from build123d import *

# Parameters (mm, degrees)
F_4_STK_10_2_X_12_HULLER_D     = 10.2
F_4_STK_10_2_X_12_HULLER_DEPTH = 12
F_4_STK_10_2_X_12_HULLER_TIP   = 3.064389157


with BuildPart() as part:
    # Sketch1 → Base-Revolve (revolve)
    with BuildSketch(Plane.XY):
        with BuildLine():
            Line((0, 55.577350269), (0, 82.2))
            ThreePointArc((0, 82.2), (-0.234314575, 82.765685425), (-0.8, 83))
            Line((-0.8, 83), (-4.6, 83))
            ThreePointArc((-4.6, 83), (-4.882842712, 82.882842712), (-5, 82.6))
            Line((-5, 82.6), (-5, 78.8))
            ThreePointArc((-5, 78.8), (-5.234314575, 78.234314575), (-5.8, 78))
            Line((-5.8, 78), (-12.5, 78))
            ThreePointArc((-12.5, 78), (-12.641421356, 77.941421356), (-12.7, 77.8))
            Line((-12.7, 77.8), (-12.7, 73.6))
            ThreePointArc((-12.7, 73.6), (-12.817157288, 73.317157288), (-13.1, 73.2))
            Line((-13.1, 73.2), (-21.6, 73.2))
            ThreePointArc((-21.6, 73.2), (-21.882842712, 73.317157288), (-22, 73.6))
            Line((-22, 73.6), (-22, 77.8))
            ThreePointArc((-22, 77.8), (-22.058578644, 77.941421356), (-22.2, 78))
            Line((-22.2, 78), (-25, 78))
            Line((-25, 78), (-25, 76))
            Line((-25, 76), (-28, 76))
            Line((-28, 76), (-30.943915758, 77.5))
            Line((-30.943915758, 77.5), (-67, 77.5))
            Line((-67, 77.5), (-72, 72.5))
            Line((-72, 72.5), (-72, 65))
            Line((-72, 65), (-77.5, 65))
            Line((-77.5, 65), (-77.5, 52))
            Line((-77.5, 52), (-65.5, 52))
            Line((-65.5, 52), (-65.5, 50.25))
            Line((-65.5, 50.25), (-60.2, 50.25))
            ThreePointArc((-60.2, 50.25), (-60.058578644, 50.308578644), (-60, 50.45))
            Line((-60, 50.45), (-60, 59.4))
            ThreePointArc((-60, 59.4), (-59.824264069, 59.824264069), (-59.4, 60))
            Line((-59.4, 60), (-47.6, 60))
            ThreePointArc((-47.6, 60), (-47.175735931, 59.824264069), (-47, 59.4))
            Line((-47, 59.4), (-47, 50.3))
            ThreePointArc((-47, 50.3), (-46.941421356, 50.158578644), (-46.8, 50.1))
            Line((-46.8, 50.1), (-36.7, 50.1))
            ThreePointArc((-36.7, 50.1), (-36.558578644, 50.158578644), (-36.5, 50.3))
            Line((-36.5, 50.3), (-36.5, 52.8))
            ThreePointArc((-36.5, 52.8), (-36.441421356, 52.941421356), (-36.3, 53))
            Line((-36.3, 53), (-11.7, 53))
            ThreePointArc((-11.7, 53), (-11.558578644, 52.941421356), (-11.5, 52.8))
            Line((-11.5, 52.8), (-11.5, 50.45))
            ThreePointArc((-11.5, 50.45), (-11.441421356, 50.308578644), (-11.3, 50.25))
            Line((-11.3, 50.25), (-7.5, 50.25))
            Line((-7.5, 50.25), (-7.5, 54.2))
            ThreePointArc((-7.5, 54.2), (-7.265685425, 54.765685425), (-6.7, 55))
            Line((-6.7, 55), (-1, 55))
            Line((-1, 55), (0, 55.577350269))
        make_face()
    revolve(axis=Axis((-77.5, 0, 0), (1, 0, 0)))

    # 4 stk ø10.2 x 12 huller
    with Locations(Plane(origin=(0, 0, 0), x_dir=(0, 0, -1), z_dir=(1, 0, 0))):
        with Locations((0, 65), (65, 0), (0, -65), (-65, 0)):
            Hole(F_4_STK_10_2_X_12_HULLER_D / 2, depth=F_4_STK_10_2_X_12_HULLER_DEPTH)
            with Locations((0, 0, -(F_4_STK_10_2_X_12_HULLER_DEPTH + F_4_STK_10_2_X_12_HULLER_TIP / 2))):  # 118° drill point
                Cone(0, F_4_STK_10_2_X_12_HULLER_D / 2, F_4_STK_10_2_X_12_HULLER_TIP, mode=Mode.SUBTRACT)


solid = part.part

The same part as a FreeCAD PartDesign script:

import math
import FreeCAD as App
import Part
import Sketcher

V = App.Vector
Q = App.Units.Quantity

doc = App.newDocument("Part")
params = doc.addObject("Spreadsheet::Sheet", "Params")
for row, (alias, value) in enumerate([
    ("sketch1_radius", "0.8 mm"),
    ("sketch1_radius2", "0.4 mm"),
    ("sketch1_radius3", "0.2 mm"),
    ("sketch1_radius4", "0.6 mm"),
    ("sketch1_width", "3 mm"),
    ("revolution_angle", "360 deg"),
    ("sketch2_diameter", "10.2 mm"),
    ("hole_diameter", "10.2 mm"),
    ("hole_depth", "12 mm"),
], start=1):
    params.set(f"A{row}", alias)
    params.set(f"B{row}", "=" + value)
    params.setAlias(f"B{row}", alias)

body = doc.addObject("PartDesign::Body", "Body")

# Sketch on XY plane
sketch1 = body.newObject("Sketcher::SketchObject", "Sketch")
sketch1.AttachmentSupport = (doc.getObject("XY_Plane"), [""])
sketch1.MapMode = "FlatFace"
sketch1.addGeometry(Part.LineSegment(V(0, 55.58, 0), V(0, 82.2, 0)), False)
sketch1.addGeometry(Part.ArcOfCircle(Part.Circle(V(-0.8, 82.2, 0), V(0, 0, 1), 0.8), math.radians(0), math.radians(90)), False)
sketch1.addGeometry(Part.LineSegment(V(-0.8, 83, 0), V(-4.6, 83, 0)), False)
sketch1.addGeometry(Part.ArcOfCircle(Part.Circle(V(-4.6, 82.6, 0), V(0, 0, 1), 0.4), math.radians(90), math.radians(180)), False)
sketch1.addGeometry(Part.LineSegment(V(-5, 82.6, 0), V(-5, 78.8, 0)), False)
sketch1.addGeometry(Part.ArcOfCircle(Part.Circle(V(-5.8, 78.8, 0), V(0, 0, 1), 0.8), math.radians(-90), math.radians(0)), False)
sketch1.addGeometry(Part.LineSegment(V(-5.8, 78, 0), V(-12.5, 78, 0)), False)
sketch1.addGeometry(Part.ArcOfCircle(Part.Circle(V(-12.5, 77.8, 0), V(0, 0, 1), 0.2), math.radians(90), math.radians(180)), False)
sketch1.addGeometry(Part.LineSegment(V(-12.7, 77.8, 0), V(-12.7, 73.6, 0)), False)
sketch1.addGeometry(Part.ArcOfCircle(Part.Circle(V(-13.1, 73.6, 0), V(0, 0, 1), 0.4), math.radians(-90), math.radians(0)), False)
sketch1.addGeometry(Part.LineSegment(V(-13.1, 73.2, 0), V(-21.6, 73.2, 0)), False)
sketch1.addGeometry(Part.ArcOfCircle(Part.Circle(V(-21.6, 73.6, 0), V(0, 0, 1), 0.4), math.radians(-180), math.radians(-90)), False)
sketch1.addGeometry(Part.LineSegment(V(-22, 73.6, 0), V(-22, 77.8, 0)), False)
sketch1.addGeometry(Part.ArcOfCircle(Part.Circle(V(-22.2, 77.8, 0), V(0, 0, 1), 0.2), math.radians(0), math.radians(90)), False)
sketch1.addGeometry(Part.LineSegment(V(-22.2, 78, 0), V(-25, 78, 0)), False)
sketch1.addGeometry(Part.LineSegment(V(-25, 78, 0), V(-25, 76, 0)), False)
sketch1.addGeometry(Part.LineSegment(V(-25, 76, 0), V(-28, 76, 0)), False)
sketch1.addGeometry(Part.LineSegment(V(-28, 76, 0), V(-30.94, 77.5, 0)), False)
sketch1.addGeometry(Part.LineSegment(V(-30.94, 77.5, 0), V(-67, 77.5, 0)), False)
sketch1.addGeometry(Part.LineSegment(V(-67, 77.5, 0), V(-72, 72.5, 0)), False)
sketch1.addGeometry(Part.LineSegment(V(-72, 72.5, 0), V(-72, 65, 0)), False)
sketch1.addGeometry(Part.LineSegment(V(-72, 65, 0), V(-77.5, 65, 0)), False)
sketch1.addGeometry(Part.LineSegment(V(-77.5, 65, 0), V(-77.5, 52, 0)), False)
sketch1.addGeometry(Part.LineSegment(V(-77.5, 52, 0), V(-65.5, 52, 0)), False)
sketch1.addGeometry(Part.LineSegment(V(-65.5, 52, 0), V(-65.5, 50.25, 0)), False)
sketch1.addGeometry(Part.LineSegment(V(-65.5, 50.25, 0), V(-60.2, 50.25, 0)), False)
sketch1.addGeometry(Part.ArcOfCircle(Part.Circle(V(-60.2, 50.45, 0), V(0, 0, 1), 0.2), math.radians(-90), math.radians(0)), False)
sketch1.addGeometry(Part.LineSegment(V(-60, 50.45, 0), V(-60, 59.4, 0)), False)
sketch1.addGeometry(Part.ArcOfCircle(Part.Circle(V(-59.4, 59.4, 0), V(0, 0, 1), 0.6), math.radians(90), math.radians(180)), False)
sketch1.addGeometry(Part.LineSegment(V(-59.4, 60, 0), V(-47.6, 60, 0)), False)
sketch1.addGeometry(Part.ArcOfCircle(Part.Circle(V(-47.6, 59.4, 0), V(0, 0, 1), 0.6), math.radians(0), math.radians(90)), False)
sketch1.addGeometry(Part.LineSegment(V(-47, 59.4, 0), V(-47, 50.3, 0)), False)
sketch1.addGeometry(Part.ArcOfCircle(Part.Circle(V(-46.8, 50.3, 0), V(0, 0, 1), 0.2), math.radians(-180), math.radians(-90)), False)
sketch1.addGeometry(Part.LineSegment(V(-46.8, 50.1, 0), V(-36.7, 50.1, 0)), False)
sketch1.addGeometry(Part.ArcOfCircle(Part.Circle(V(-36.7, 50.3, 0), V(0, 0, 1), 0.2), math.radians(-90), math.radians(0)), False)
sketch1.addGeometry(Part.LineSegment(V(-36.5, 50.3, 0), V(-36.5, 52.8, 0)), False)
sketch1.addGeometry(Part.ArcOfCircle(Part.Circle(V(-36.3, 52.8, 0), V(0, 0, 1), 0.2), math.radians(90), math.radians(180)), False)
sketch1.addGeometry(Part.LineSegment(V(-36.3, 53, 0), V(-11.7, 53, 0)), False)
sketch1.addGeometry(Part.ArcOfCircle(Part.Circle(V(-11.7, 52.8, 0), V(0, 0, 1), 0.2), math.radians(0), math.radians(90)), False)
sketch1.addGeometry(Part.LineSegment(V(-11.5, 52.8, 0), V(-11.5, 50.45, 0)), False)
sketch1.addGeometry(Part.ArcOfCircle(Part.Circle(V(-11.3, 50.45, 0), V(0, 0, 1), 0.2), math.radians(-180), math.radians(-90)), False)
sketch1.addGeometry(Part.LineSegment(V(-11.3, 50.25, 0), V(-7.5, 50.25, 0)), False)
sketch1.addGeometry(Part.LineSegment(V(-7.5, 50.25, 0), V(-7.5, 54.2, 0)), False)
sketch1.addGeometry(Part.ArcOfCircle(Part.Circle(V(-6.7, 54.2, 0), V(0, 0, 1), 0.8), math.radians(90), math.radians(180)), False)
sketch1.addGeometry(Part.LineSegment(V(-6.7, 55, 0), V(-1, 55, 0)), False)
sketch1.addGeometry(Part.LineSegment(V(-1, 55, 0), V(0, 55.58, 0)), False)
sketch1.addConstraint(Sketcher.Constraint("Tangent", 0, 2, 1, 1))
sketch1.addConstraint(Sketcher.Constraint("Tangent", 1, 2, 2, 1))
sketch1.addConstraint(Sketcher.Constraint("Tangent", 2, 2, 3, 1))
sketch1.addConstraint(Sketcher.Constraint("Tangent", 3, 2, 4, 1))
sketch1.addConstraint(Sketcher.Constraint("Tangent", 4, 2, 5, 2))
sketch1.addConstraint(Sketcher.Constraint("Tangent", 5, 1, 6, 1))
sketch1.addConstraint(Sketcher.Constraint("Tangent", 6, 2, 7, 1))
sketch1.addConstraint(Sketcher.Constraint("Tangent", 7, 2, 8, 1))
sketch1.addConstraint(Sketcher.Constraint("Tangent", 8, 2, 9, 2))
sketch1.addConstraint(Sketcher.Constraint("Tangent", 9, 1, 10, 1))
sketch1.addConstraint(Sketcher.Constraint("Tangent", 10, 2, 11, 2))
sketch1.addConstraint(Sketcher.Constraint("Tangent", 11, 1, 12, 1))
sketch1.addConstraint(Sketcher.Constraint("Tangent", 12, 2, 13, 1))
sketch1.addConstraint(Sketcher.Constraint("Tangent", 13, 2, 14, 1))
sketch1.addConstraint(Sketcher.Constraint("Coincident", 14, 2, 15, 1))
sketch1.addConstraint(Sketcher.Constraint("Coincident", 15, 2, 16, 1))
sketch1.addConstraint(Sketcher.Constraint("Coincident", 16, 2, 17, 1))
sketch1.addConstraint(Sketcher.Constraint("Coincident", 17, 2, 18, 1))
sketch1.addConstraint(Sketcher.Constraint("Coincident", 18, 2, 19, 1))
sketch1.addConstraint(Sketcher.Constraint("Coincident", 19, 2, 20, 1))
sketch1.addConstraint(Sketcher.Constraint("Coincident", 20, 2, 21, 1))
sketch1.addConstraint(Sketcher.Constraint("Coincident", 21, 2, 22, 1))
sketch1.addConstraint(Sketcher.Constraint("Coincident", 22, 2, 23, 1))
sketch1.addConstraint(Sketcher.Constraint("Coincident", 23, 2, 24, 1))
sketch1.addConstraint(Sketcher.Constraint("Coincident", 24, 2, 25, 1))
sketch1.addConstraint(Sketcher.Constraint("Tangent", 25, 2, 26, 1))
sketch1.addConstraint(Sketcher.Constraint("Tangent", 26, 2, 27, 1))
sketch1.addConstraint(Sketcher.Constraint("Tangent", 27, 2, 28, 2))
sketch1.addConstraint(Sketcher.Constraint("Tangent", 28, 1, 29, 1))
sketch1.addConstraint(Sketcher.Constraint("Tangent", 29, 2, 30, 2))
sketch1.addConstraint(Sketcher.Constraint("Tangent", 30, 1, 31, 1))
sketch1.addConstraint(Sketcher.Constraint("Tangent", 31, 2, 32, 1))
sketch1.addConstraint(Sketcher.Constraint("Tangent", 32, 2, 33, 1))
sketch1.addConstraint(Sketcher.Constraint("Tangent", 33, 2, 34, 1))
sketch1.addConstraint(Sketcher.Constraint("Tangent", 34, 2, 35, 1))
sketch1.addConstraint(Sketcher.Constraint("Tangent", 35, 2, 36, 2))
sketch1.addConstraint(Sketcher.Constraint("Tangent", 36, 1, 37, 1))
sketch1.addConstraint(Sketcher.Constraint("Tangent", 37, 2, 38, 2))
sketch1.addConstraint(Sketcher.Constraint("Tangent", 38, 1, 39, 1))
sketch1.addConstraint(Sketcher.Constraint("Tangent", 39, 2, 40, 1))
sketch1.addConstraint(Sketcher.Constraint("Tangent", 40, 2, 41, 1))
sketch1.addConstraint(Sketcher.Constraint("Coincident", 41, 2, 42, 1))
sketch1.addConstraint(Sketcher.Constraint("Tangent", 42, 2, 43, 2))
sketch1.addConstraint(Sketcher.Constraint("Tangent", 43, 1, 44, 1))
sketch1.addConstraint(Sketcher.Constraint("Coincident", 44, 2, 45, 1))
sketch1.addConstraint(Sketcher.Constraint("Coincident", 45, 2, 0, 1))
sketch1.addConstraint(Sketcher.Constraint("Vertical", 0))
sketch1.addConstraint(Sketcher.Constraint("Horizontal", 2))
sketch1.addConstraint(Sketcher.Constraint("Vertical", 4))
sketch1.addConstraint(Sketcher.Constraint("Horizontal", 6))
sketch1.addConstraint(Sketcher.Constraint("Vertical", 8))
sketch1.addConstraint(Sketcher.Constraint("Horizontal", 10))
sketch1.addConstraint(Sketcher.Constraint("Vertical", 12))
sketch1.addConstraint(Sketcher.Constraint("Horizontal", 14))
sketch1.addConstraint(Sketcher.Constraint("Vertical", 15))
sketch1.addConstraint(Sketcher.Constraint("Horizontal", 16))
sketch1.addConstraint(Sketcher.Constraint("Horizontal", 18))
sketch1.addConstraint(Sketcher.Constraint("Vertical", 20))
sketch1.addConstraint(Sketcher.Constraint("Horizontal", 21))
sketch1.addConstraint(Sketcher.Constraint("Vertical", 22))
sketch1.addConstraint(Sketcher.Constraint("Horizontal", 23))
sketch1.addConstraint(Sketcher.Constraint("Vertical", 24))
sketch1.addConstraint(Sketcher.Constraint("Horizontal", 25))
sketch1.addConstraint(Sketcher.Constraint("Vertical", 27))
sketch1.addConstraint(Sketcher.Constraint("Horizontal", 29))
sketch1.addConstraint(Sketcher.Constraint("Vertical", 31))
sketch1.addConstraint(Sketcher.Constraint("Horizontal", 33))
sketch1.addConstraint(Sketcher.Constraint("Vertical", 35))
sketch1.addConstraint(Sketcher.Constraint("Horizontal", 37))
sketch1.addConstraint(Sketcher.Constraint("Vertical", 39))
sketch1.addConstraint(Sketcher.Constraint("Horizontal", 41))
sketch1.addConstraint(Sketcher.Constraint("Vertical", 42))
sketch1.addConstraint(Sketcher.Constraint("Horizontal", 44))
sketch1.addConstraint(Sketcher.Constraint("Equal", 1, 5))
sketch1.addConstraint(Sketcher.Constraint("Equal", 3, 9))
sketch1.addConstraint(Sketcher.Constraint("Equal", 9, 11))
sketch1.addConstraint(Sketcher.Constraint("Equal", 7, 13))
sketch1.addConstraint(Sketcher.Constraint("Equal", 13, 26))
sketch1.addConstraint(Sketcher.Constraint("Equal", 28, 30))
sketch1.addConstraint(Sketcher.Constraint("Equal", 26, 32))
sketch1.addConstraint(Sketcher.Constraint("Equal", 32, 34))
sketch1.addConstraint(Sketcher.Constraint("Equal", 34, 36))
sketch1.addConstraint(Sketcher.Constraint("Equal", 36, 38))
sketch1.addConstraint(Sketcher.Constraint("Equal", 38, 40))
sketch1.addConstraint(Sketcher.Constraint("Equal", 5, 43))
sketch1.addConstraint(Sketcher.Constraint("PointOnObject", 0, 2, -2))
sketch1.addConstraint(Sketcher.Constraint("Horizontal", 7, 3, 13, 3))
sketch1.addConstraint(Sketcher.Constraint("Horizontal", 26, 3, 40, 3))
sketch1.addConstraint(Sketcher.Constraint("Equal", 2, 41))
sketch1.addConstraint(Sketcher.Constraint("Equal", 41, 4))
sketch1.addConstraint(Sketcher.Constraint("Radius", 1, Q("0.8 mm")))
sketch1.addConstraint(Sketcher.Constraint("Radius", 3, Q("0.4 mm")))
sketch1.addConstraint(Sketcher.Constraint("Radius", 7, Q("0.2 mm")))
sketch1.addConstraint(Sketcher.Constraint("Radius", 28, Q("0.6 mm")))
sketch1.addConstraint(Sketcher.Constraint("DistanceX", 16, 2, 16, 1, Q("3 mm")))
sketch1.addConstraint(Sketcher.Constraint("DistanceX", 23, 1, 23, 2, Q("12 mm")))
sketch1.addConstraint(Sketcher.Constraint("DistanceY", 15, 2, 15, 1, Q("2 mm")))
sketch1.addConstraint(Sketcher.Constraint("DistanceY", 22, 2, 22, 1, Q("13 mm")))
sketch1.addConstraint(Sketcher.Constraint("Angle", 17, Q("153 deg")))
sketch1.addConstraint(Sketcher.Constraint("Angle", 19, Q("-135 deg")))
sketch1.addConstraint(Sketcher.Constraint("Angle", 45, Q("30 deg")))
sketch1.addConstraint(Sketcher.Constraint("DistanceX", 2, 2, 2, 1, Q("3.8 mm")))
sketch1.addConstraint(Sketcher.Constraint("DistanceX", 6, 2, 6, 1, Q("6.7 mm")))
sketch1.addConstraint(Sketcher.Constraint("DistanceX", 10, 2, 10, 1, Q("8.5 mm")))
sketch1.addConstraint(Sketcher.Constraint("DistanceX", 14, 2, 14, 1, Q("2.8 mm")))
sketch1.addConstraint(Sketcher.Constraint("DistanceX", 21, 2, 21, 1, Q("5.5 mm")))
sketch1.addConstraint(Sketcher.Constraint("DistanceX", 25, 1, 25, 2, Q("5.3 mm")))
sketch1.addConstraint(Sketcher.Constraint("DistanceX", 29, 1, 29, 2, Q("11.8 mm")))
sketch1.addConstraint(Sketcher.Constraint("DistanceX", 33, 1, 33, 2, Q("10.1 mm")))
sketch1.addConstraint(Sketcher.Constraint("DistanceX", 37, 1, 37, 2, Q("24.6 mm")))
sketch1.addConstraint(Sketcher.Constraint("DistanceX", 44, 1, 44, 2, Q("5.7 mm")))
sketch1.addConstraint(Sketcher.Constraint("DistanceY", 8, 2, 8, 1, Q("4.2 mm")))
sketch1.addConstraint(Sketcher.Constraint("DistanceY", 20, 2, 20, 1, Q("7.5 mm")))
sketch1.addConstraint(Sketcher.Constraint("DistanceY", 31, 2, 31, 1, Q("9.1 mm")))
sketch1.addConstraint(Sketcher.Constraint("DistanceY", 35, 1, 35, 2, Q("2.5 mm")))
sketch1.addConstraint(Sketcher.Constraint("DistanceY", -1, 1, 1, 2, Q("83 mm")))
sketch1.addConstraint(Sketcher.Constraint("DistanceX", 18, 2, -1, 1, Q("67 mm")))
sketch1.addConstraint(Sketcher.Constraint("DistanceX", 19, 2, -1, 1, Q("72 mm")))
sketch1.addConstraint(Sketcher.Constraint("DistanceY", -1, 1, 20, 2, Q("65 mm")))
sketch1.addConstraint(Sketcher.Constraint("DistanceY", -1, 1, 28, 1, Q("60 mm")))
sketch1.addConstraint(Sketcher.Constraint("DistanceY", -1, 1, 43, 1, Q("55 mm")))
sketch1.addConstraint(Sketcher.Constraint("DistanceY", 24, 2, 24, 1, Q("1.75 mm")))
sketch1.setExpression("Constraints[90]", "Params.sketch1_radius")
sketch1.setExpression("Constraints[91]", "Params.sketch1_radius2")
sketch1.setExpression("Constraints[92]", "Params.sketch1_radius3")
sketch1.setExpression("Constraints[93]", "Params.sketch1_radius4")
sketch1.setExpression("Constraints[94]", "Params.sketch1_width")
revolution = body.newObject("PartDesign::Revolution", "Revolution")
revolution.Profile = sketch1
revolution.ReferenceAxis = (sketch1, ["H_Axis"])
revolution.setExpression("Angle", "Params.revolution_angle")

# Sketch on YZ plane
sketch2 = body.newObject("Sketcher::SketchObject", "Sketch001")
sketch2.AttachmentSupport = (doc.getObject("YZ_Plane"), [""])
sketch2.MapMode = "FlatFace"
sketch2.addGeometry(Part.Circle(V(65, 0, 0), V(0, 0, 1), 5), False)
sketch2.addGeometry(Part.Circle(V(0, -65, 0), V(0, 0, 1), 5), False)
sketch2.addGeometry(Part.Circle(V(-65, 0, 0), V(0, 0, 1), 5), False)
sketch2.addGeometry(Part.Circle(V(0, 65, 0), V(0, 0, 1), 5), False)
sketch2.addConstraint(Sketcher.Constraint("Equal", 0, 1))
sketch2.addConstraint(Sketcher.Constraint("Equal", 1, 2))
sketch2.addConstraint(Sketcher.Constraint("Equal", 2, 3))
sketch2.addConstraint(Sketcher.Constraint("Symmetric", 0, 3, 2, 3, -1, 1))
sketch2.addConstraint(Sketcher.Constraint("Symmetric", 1, 3, 3, 3, -1, 1))
sketch2.addConstraint(Sketcher.Constraint("PointOnObject", 0, 3, -1))
sketch2.addConstraint(Sketcher.Constraint("PointOnObject", 1, 3, -2))
sketch2.addConstraint(Sketcher.Constraint("Diameter", 0, Q("10.2 mm")))
sketch2.addConstraint(Sketcher.Constraint("DistanceX", -1, 1, 0, 3, Q("65 mm")))
sketch2.addConstraint(Sketcher.Constraint("DistanceY", 1, 3, -1, 1, Q("65 mm")))
sketch2.setExpression("Constraints[7]", "Params.sketch2_diameter")
doc.recompute()
hole = body.newObject("PartDesign::Hole", "Hole")
hole.Profile = sketch2
hole.ThreadType = "None"
hole.setExpression("Diameter", "Params.hole_diameter")
hole.DepthType = "Dimension"
hole.setExpression("Depth", "Params.hole_depth")
hole.DrillPoint = "Angled"
hole.DrillPointAngle = 118

doc.recompute()
